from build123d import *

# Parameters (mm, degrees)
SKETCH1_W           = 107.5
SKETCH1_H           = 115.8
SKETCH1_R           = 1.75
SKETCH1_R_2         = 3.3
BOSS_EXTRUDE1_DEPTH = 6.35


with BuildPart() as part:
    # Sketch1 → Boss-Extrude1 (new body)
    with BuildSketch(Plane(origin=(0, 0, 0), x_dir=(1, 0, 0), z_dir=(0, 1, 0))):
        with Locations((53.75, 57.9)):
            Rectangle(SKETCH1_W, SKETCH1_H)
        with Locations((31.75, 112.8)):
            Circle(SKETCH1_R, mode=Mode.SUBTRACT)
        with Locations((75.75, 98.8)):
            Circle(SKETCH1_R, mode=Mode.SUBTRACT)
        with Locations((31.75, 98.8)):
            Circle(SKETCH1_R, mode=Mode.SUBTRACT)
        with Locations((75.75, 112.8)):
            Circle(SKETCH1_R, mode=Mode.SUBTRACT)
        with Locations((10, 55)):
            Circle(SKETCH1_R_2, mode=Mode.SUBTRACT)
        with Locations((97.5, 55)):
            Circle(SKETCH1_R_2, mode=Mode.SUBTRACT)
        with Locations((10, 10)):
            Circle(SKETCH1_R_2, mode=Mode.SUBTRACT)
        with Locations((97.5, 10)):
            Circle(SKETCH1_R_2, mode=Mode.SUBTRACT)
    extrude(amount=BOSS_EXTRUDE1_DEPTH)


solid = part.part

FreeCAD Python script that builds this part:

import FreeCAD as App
import Part
import Sketcher

V = App.Vector
Q = App.Units.Quantity


def add_polygon(sketch, points):
    """Adds a closed chain of lines whose ends are joined by coincident constraints."""
    first, n = sketch.GeometryCount, len(points)
    for a, b in zip(points, points[1:] + points[:1]):
        sketch.addGeometry(Part.LineSegment(App.Vector(*a, 0), App.Vector(*b, 0)), False)
    for i in range(n):
        sketch.addConstraint(Sketcher.Constraint("Coincident", first + i, 2, first + (i + 1) % n, 1))

doc = App.newDocument("Part")
params = doc.addObject("Spreadsheet::Sheet", "Params")
for row, (alias, value) in enumerate([
    ("sketch1_diameter", "6.6 mm"),
    ("sketch1_diameter2", "3.5 mm"),
    ("sketch1_width", "107.5 mm"),
    ("sketch1_height", "115.8 mm"),
    ("pad1_length", "6.35 mm"),
], start=1):
    params.set(f"A{row}", alias)
    params.set(f"B{row}", "=" + value)
    params.setAlias(f"B{row}", alias)

body = doc.addObject("PartDesign::Body", "Body")

# Sketch on XZ plane
sketch1 = body.newObject("Sketcher::SketchObject", "Sketch")
sketch1.AttachmentSupport = (doc.getObject("XZ_Plane"), [""])
sketch1.MapMode = "FlatFace"
add_polygon(sketch1, [(0, -115.8), (0, 0), (107.5, 0), (107.5, -115.8)])  # lines 0-3
sketch1.addGeometry(Part.Circle(V(10, -10, 0), V(0, 0, 1), 3.3), False)  # 4
sketch1.addGeometry(Part.Circle(V(10, -55, 0), V(0, 0, 1), 3.3), False)  # 5
sketch1.addGeometry(Part.Circle(V(97.5, -10, 0), V(0, 0, 1), 3.3), False)  # 6
sketch1.addGeometry(Part.Circle(V(97.5, -55, 0), V(0, 0, 1), 3.3), False)  # 7
sketch1.addGeometry(Part.Circle(V(31.8, -98.8, 0), V(0, 0, 1), 1.8), False)  # 8
sketch1.addGeometry(Part.Circle(V(31.8, -112.8, 0), V(0, 0, 1), 1.8), False)  # 9
sketch1.addGeometry(Part.Circle(V(75.8, -98.8, 0), V(0, 0, 1), 1.8), False)  # 10
sketch1.addGeometry(Part.Circle(V(75.8, -112.8, 0), V(0, 0, 1), 1.8), False)  # 11
sketch1.addConstraint(Sketcher.Constraint("Vertical", 0))
sketch1.addConstraint(Sketcher.Constraint("Horizontal", 1))
sketch1.addConstraint(Sketcher.Constraint("Vertical", 2))
sketch1.addConstraint(Sketcher.Constraint("Horizontal", 3))
sketch1.addConstraint(Sketcher.Constraint("Coincident", 0, 2, -1, 1))
sketch1.addConstraint(Sketcher.Constraint("Equal", 4, 5))
sketch1.addConstraint(Sketcher.Constraint("Equal", 5, 6))
sketch1.addConstraint(Sketcher.Constraint("Equal", 6, 7))
sketch1.addConstraint(Sketcher.Constraint("Equal", 8, 9))
sketch1.addConstraint(Sketcher.Constraint("Equal", 9, 10))
sketch1.addConstraint(Sketcher.Constraint("Equal", 10, 11))
sketch1.addConstraint(Sketcher.Constraint("Horizontal", 4, 3, 6, 3))
sketch1.addConstraint(Sketcher.Constraint("Horizontal", 5, 3, 7, 3))
sketch1.addConstraint(Sketcher.Constraint("Horizontal", 8, 3, 10, 3))
sketch1.addConstraint(Sketcher.Constraint("Horizontal", 9, 3, 11, 3))
sketch1.addConstraint(Sketcher.Constraint("Vertical", 4, 3, 5, 3))
sketch1.addConstraint(Sketcher.Constraint("Vertical", 6, 3, 7, 3))
sketch1.addConstraint(Sketcher.Constraint("Vertical", 8, 3, 9, 3))
sketch1.addConstraint(Sketcher.Constraint("Vertical", 10, 3, 11, 3))
sketch1.addConstraint(Sketcher.Constraint("Diameter", 4, Q("6.6 mm")))
sketch1.addConstraint(Sketcher.Constraint("Diameter", 8, Q("3.5 mm")))
sketch1.addConstraint(Sketcher.Constraint("DistanceX", 1, 1, 1, 2, Q("107.5 mm")))
sketch1.addConstraint(Sketcher.Constraint("DistanceY", 0, 1, 0, 2, Q("115.8 mm")))
sketch1.addConstraint(Sketcher.Constraint("DistanceX", -1, 1, 4, 3, Q("10 mm")))
sketch1.addConstraint(Sketcher.Constraint("DistanceY", 4, 3, -1, 1, Q("10 mm")))
sketch1.addConstraint(Sketcher.Constraint("DistanceY", 5, 3, -1, 1, Q("55 mm")))
sketch1.addConstraint(Sketcher.Constraint("DistanceY", 9, 3, 8, 3, Q("14 mm")))
sketch1.addConstraint(Sketcher.Constraint("DistanceX", 8, 3, 10, 3, Q("44 mm")))
sketch1.addConstraint(Sketcher.Constraint("DistanceX", 6, 3, 1, 2, Q("10 mm")))
sketch1.addConstraint(Sketcher.Constraint("DistanceY", 2, 2, 11, 3, Q("3 mm")))
sketch1.addConstraint(Sketcher.Constraint("DistanceX", -1, 1, 8, 3, Q("31.75 mm")))
sketch1.setExpression("Constraints[23]", "Params.sketch1_diameter")
sketch1.setExpression("Constraints[24]", "Params.sketch1_diameter2")
sketch1.setExpression("Constraints[25]", "Params.sketch1_width")
sketch1.setExpression("Constraints[26]", "Params.sketch1_height")
pad1 = body.newObject("PartDesign::Pad", "Pad")
pad1.Profile = sketch1
pad1.setExpression("Length", "Params.pad1_length")
pad1.Reversed = True

doc.recompute()
